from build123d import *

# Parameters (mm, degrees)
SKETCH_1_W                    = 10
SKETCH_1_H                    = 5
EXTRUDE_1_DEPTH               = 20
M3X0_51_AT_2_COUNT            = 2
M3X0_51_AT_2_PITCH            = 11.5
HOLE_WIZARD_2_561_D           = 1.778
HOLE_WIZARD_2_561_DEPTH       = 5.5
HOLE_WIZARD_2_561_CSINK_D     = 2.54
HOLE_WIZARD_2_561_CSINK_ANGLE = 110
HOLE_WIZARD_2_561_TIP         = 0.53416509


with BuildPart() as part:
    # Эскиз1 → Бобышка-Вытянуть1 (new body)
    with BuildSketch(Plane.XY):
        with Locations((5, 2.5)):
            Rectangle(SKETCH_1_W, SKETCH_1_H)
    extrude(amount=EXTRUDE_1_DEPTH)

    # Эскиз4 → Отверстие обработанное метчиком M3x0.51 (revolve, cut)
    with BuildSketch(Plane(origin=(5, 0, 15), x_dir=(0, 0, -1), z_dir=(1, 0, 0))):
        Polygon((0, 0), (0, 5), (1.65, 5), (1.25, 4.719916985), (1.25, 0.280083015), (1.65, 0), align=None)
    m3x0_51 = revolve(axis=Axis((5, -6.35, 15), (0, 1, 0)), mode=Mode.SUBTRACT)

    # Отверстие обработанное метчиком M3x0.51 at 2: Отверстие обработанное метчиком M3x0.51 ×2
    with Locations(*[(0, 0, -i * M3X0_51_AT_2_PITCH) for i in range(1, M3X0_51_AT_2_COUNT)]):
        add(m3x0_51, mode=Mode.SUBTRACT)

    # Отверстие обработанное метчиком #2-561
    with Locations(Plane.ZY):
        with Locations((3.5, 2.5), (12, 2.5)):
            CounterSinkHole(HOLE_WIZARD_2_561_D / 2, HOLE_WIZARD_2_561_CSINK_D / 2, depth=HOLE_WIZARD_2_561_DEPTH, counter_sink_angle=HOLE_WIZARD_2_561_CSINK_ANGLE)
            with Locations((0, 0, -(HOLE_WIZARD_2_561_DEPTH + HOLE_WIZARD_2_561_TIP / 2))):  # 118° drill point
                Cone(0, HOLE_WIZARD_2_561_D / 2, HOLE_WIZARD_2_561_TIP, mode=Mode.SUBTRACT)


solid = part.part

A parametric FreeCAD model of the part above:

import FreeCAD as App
import Part
import Sketcher

V = App.Vector
Q = App.Units.Quantity


def add_polygon(sketch, points):
    """Adds a closed chain of lines whose ends are joined by coincident constraints."""
    first, n = sketch.GeometryCount, len(points)
    for a, b in zip(points, points[1:] + points[:1]):
        sketch.addGeometry(Part.LineSegment(App.Vector(*a, 0), App.Vector(*b, 0)), False)
    for i in range(n):
        sketch.addConstraint(Sketcher.Constraint("Coincident", first + i, 2, first + (i + 1) % n, 1))

doc = App.newDocument("Part")
body = doc.addObject("PartDesign::Body", "Body")

# Sketch on XY plane
sketch1 = doc.addObject("Sketcher::SketchObject", "Sketch")
body.addObject(sketch1)
sketch1.AttachmentSupport = (doc.XY_Plane, [""])
sketch1.MapMode = "FlatFace"
add_polygon(sketch1, [(0, 5), (0, 0), (10, 0), (10, 5)])  # lines 0-3
sketch1.addConstraint([
    Sketcher.Constraint("Vertical", 0),
    Sketcher.Constraint("Horizontal", 1),
    Sketcher.Constraint("Vertical", 2),
    Sketcher.Constraint("Horizontal", 3),
    Sketcher.Constraint("Coincident", 0, 2, -1, 1),
    Sketcher.Constraint("DistanceX", 1, 1, 1, 2, 10.0),
    Sketcher.Constraint("DistanceY", 0, 2, 0, 1, 5.0),
])
pad1 = doc.addObject("PartDesign::Pad", "Pad")
body.addObject(pad1)
pad1.Profile = sketch1
pad1.Length = 20

# Sketch on YZ plane
sketch2 = doc.addObject("Sketcher::SketchObject", "Sketch001")
body.addObject(sketch2)
sketch2.AttachmentSupport = (doc.YZ_Plane, [""])
sketch2.MapMode = "FlatFace"
sketch2.AttachmentOffset = App.Placement(V(0, 0, 5), App.Rotation())
add_polygon(sketch2, [(5, 15), (0, 15), (0, 13.35), (0.280083, 13.75), (4.719917, 13.75), (5, 13.35)])  # lines 0-5
sketch2.addGeometry(Part.LineSegment(V(0, 15, 0), V(5, 15, 0)), True)  # axis
sketch2.addConstraint([
    Sketcher.Constraint("Horizontal", 0),
    Sketcher.Constraint("Vertical", 1),
    Sketcher.Constraint("Horizontal", 3),
    Sketcher.Constraint("Vertical", 5),
    Sketcher.Constraint("Horizontal", 6),
    Sketcher.Constraint("Coincident", 6, 1, 0, 2),
    Sketcher.Constraint("PointOnObject", 0, 2, -2),
    Sketcher.Constraint("Horizontal", 1, 2, 4, 2),
    Sketcher.Constraint("Vertical", 4, 2, 6, 2),
    Sketcher.Constraint("Equal", 2, 4),
    Sketcher.Constraint("DistanceX", 0, 2, 0, 1, 5.0),
    Sketcher.Constraint("Angle", 2, Q("55 deg")),
    Sketcher.Constraint("DistanceY", -1, 1, 0, 2, 15.0),
    Sketcher.Constraint("DistanceY", 1, 2, 1, 1, 1.65),
    Sketcher.Constraint("DistanceY", 1, 2, 2, 2, 0.4),
])
groove = doc.addObject("PartDesign::Groove", "Groove")
body.addObject(groove)
groove.Profile = sketch2
groove.ReferenceAxis = (sketch2, ["Axis0"])
groove.Angle = 360
doc.recompute()

linearpattern = doc.addObject("PartDesign::LinearPattern", "LinearPattern")
body.addObject(linearpattern)
linearpattern.Originals = [groove]
linearpattern.Direction = (doc.Z_Axis, [""])
linearpattern.Mode = "offset"
linearpattern.Offset = 11.5
linearpattern.Occurrences = 2
linearpattern.Reversed = True
body.Tip = linearpattern

# Sketch on YZ plane
sketch3 = doc.addObject("Sketcher::SketchObject", "Sketch002")
body.addObject(sketch3)
sketch3.AttachmentSupport = (doc.YZ_Plane, [""])
sketch3.MapMode = "FlatFace"
sketch3.addGeometry([
    Part.Circle(V(2.5, 3.5, 0), V(0, 0, 1), 0.889),
    Part.Circle(V(2.5, 12, 0), V(0, 0, 1), 0.889),
], False)
sketch3.addConstraint([
    Sketcher.Constraint("Equal", 0, 1),
    Sketcher.Constraint("Vertical", 0, 3, 1, 3),
    Sketcher.Constraint("Diameter", 0, 1.778),
    Sketcher.Constraint("DistanceY", -1, 1, 1, 3, 12.0),
    Sketcher.Constraint("DistanceX", -1, 1, 0, 3, 2.5),
    Sketcher.Constraint("DistanceY", -1, 1, 0, 3, 3.5),
])
doc.recompute()
hole = doc.addObject("PartDesign::Hole", "Hole")
body.addObject(hole)
hole.Profile = sketch3
hole.ThreadType = "None"
hole.Diameter = 1.778
hole.DepthType = "Dimension"
hole.Depth = 5.5
hole.DrillPoint = "Angled"
hole.DrillPointAngle = 118
hole.HoleCutType = "Countersink"
hole.HoleCutDiameter = 2.54
hole.HoleCutCountersinkAngle = 110
hole.Reversed = True

doc.recompute()
